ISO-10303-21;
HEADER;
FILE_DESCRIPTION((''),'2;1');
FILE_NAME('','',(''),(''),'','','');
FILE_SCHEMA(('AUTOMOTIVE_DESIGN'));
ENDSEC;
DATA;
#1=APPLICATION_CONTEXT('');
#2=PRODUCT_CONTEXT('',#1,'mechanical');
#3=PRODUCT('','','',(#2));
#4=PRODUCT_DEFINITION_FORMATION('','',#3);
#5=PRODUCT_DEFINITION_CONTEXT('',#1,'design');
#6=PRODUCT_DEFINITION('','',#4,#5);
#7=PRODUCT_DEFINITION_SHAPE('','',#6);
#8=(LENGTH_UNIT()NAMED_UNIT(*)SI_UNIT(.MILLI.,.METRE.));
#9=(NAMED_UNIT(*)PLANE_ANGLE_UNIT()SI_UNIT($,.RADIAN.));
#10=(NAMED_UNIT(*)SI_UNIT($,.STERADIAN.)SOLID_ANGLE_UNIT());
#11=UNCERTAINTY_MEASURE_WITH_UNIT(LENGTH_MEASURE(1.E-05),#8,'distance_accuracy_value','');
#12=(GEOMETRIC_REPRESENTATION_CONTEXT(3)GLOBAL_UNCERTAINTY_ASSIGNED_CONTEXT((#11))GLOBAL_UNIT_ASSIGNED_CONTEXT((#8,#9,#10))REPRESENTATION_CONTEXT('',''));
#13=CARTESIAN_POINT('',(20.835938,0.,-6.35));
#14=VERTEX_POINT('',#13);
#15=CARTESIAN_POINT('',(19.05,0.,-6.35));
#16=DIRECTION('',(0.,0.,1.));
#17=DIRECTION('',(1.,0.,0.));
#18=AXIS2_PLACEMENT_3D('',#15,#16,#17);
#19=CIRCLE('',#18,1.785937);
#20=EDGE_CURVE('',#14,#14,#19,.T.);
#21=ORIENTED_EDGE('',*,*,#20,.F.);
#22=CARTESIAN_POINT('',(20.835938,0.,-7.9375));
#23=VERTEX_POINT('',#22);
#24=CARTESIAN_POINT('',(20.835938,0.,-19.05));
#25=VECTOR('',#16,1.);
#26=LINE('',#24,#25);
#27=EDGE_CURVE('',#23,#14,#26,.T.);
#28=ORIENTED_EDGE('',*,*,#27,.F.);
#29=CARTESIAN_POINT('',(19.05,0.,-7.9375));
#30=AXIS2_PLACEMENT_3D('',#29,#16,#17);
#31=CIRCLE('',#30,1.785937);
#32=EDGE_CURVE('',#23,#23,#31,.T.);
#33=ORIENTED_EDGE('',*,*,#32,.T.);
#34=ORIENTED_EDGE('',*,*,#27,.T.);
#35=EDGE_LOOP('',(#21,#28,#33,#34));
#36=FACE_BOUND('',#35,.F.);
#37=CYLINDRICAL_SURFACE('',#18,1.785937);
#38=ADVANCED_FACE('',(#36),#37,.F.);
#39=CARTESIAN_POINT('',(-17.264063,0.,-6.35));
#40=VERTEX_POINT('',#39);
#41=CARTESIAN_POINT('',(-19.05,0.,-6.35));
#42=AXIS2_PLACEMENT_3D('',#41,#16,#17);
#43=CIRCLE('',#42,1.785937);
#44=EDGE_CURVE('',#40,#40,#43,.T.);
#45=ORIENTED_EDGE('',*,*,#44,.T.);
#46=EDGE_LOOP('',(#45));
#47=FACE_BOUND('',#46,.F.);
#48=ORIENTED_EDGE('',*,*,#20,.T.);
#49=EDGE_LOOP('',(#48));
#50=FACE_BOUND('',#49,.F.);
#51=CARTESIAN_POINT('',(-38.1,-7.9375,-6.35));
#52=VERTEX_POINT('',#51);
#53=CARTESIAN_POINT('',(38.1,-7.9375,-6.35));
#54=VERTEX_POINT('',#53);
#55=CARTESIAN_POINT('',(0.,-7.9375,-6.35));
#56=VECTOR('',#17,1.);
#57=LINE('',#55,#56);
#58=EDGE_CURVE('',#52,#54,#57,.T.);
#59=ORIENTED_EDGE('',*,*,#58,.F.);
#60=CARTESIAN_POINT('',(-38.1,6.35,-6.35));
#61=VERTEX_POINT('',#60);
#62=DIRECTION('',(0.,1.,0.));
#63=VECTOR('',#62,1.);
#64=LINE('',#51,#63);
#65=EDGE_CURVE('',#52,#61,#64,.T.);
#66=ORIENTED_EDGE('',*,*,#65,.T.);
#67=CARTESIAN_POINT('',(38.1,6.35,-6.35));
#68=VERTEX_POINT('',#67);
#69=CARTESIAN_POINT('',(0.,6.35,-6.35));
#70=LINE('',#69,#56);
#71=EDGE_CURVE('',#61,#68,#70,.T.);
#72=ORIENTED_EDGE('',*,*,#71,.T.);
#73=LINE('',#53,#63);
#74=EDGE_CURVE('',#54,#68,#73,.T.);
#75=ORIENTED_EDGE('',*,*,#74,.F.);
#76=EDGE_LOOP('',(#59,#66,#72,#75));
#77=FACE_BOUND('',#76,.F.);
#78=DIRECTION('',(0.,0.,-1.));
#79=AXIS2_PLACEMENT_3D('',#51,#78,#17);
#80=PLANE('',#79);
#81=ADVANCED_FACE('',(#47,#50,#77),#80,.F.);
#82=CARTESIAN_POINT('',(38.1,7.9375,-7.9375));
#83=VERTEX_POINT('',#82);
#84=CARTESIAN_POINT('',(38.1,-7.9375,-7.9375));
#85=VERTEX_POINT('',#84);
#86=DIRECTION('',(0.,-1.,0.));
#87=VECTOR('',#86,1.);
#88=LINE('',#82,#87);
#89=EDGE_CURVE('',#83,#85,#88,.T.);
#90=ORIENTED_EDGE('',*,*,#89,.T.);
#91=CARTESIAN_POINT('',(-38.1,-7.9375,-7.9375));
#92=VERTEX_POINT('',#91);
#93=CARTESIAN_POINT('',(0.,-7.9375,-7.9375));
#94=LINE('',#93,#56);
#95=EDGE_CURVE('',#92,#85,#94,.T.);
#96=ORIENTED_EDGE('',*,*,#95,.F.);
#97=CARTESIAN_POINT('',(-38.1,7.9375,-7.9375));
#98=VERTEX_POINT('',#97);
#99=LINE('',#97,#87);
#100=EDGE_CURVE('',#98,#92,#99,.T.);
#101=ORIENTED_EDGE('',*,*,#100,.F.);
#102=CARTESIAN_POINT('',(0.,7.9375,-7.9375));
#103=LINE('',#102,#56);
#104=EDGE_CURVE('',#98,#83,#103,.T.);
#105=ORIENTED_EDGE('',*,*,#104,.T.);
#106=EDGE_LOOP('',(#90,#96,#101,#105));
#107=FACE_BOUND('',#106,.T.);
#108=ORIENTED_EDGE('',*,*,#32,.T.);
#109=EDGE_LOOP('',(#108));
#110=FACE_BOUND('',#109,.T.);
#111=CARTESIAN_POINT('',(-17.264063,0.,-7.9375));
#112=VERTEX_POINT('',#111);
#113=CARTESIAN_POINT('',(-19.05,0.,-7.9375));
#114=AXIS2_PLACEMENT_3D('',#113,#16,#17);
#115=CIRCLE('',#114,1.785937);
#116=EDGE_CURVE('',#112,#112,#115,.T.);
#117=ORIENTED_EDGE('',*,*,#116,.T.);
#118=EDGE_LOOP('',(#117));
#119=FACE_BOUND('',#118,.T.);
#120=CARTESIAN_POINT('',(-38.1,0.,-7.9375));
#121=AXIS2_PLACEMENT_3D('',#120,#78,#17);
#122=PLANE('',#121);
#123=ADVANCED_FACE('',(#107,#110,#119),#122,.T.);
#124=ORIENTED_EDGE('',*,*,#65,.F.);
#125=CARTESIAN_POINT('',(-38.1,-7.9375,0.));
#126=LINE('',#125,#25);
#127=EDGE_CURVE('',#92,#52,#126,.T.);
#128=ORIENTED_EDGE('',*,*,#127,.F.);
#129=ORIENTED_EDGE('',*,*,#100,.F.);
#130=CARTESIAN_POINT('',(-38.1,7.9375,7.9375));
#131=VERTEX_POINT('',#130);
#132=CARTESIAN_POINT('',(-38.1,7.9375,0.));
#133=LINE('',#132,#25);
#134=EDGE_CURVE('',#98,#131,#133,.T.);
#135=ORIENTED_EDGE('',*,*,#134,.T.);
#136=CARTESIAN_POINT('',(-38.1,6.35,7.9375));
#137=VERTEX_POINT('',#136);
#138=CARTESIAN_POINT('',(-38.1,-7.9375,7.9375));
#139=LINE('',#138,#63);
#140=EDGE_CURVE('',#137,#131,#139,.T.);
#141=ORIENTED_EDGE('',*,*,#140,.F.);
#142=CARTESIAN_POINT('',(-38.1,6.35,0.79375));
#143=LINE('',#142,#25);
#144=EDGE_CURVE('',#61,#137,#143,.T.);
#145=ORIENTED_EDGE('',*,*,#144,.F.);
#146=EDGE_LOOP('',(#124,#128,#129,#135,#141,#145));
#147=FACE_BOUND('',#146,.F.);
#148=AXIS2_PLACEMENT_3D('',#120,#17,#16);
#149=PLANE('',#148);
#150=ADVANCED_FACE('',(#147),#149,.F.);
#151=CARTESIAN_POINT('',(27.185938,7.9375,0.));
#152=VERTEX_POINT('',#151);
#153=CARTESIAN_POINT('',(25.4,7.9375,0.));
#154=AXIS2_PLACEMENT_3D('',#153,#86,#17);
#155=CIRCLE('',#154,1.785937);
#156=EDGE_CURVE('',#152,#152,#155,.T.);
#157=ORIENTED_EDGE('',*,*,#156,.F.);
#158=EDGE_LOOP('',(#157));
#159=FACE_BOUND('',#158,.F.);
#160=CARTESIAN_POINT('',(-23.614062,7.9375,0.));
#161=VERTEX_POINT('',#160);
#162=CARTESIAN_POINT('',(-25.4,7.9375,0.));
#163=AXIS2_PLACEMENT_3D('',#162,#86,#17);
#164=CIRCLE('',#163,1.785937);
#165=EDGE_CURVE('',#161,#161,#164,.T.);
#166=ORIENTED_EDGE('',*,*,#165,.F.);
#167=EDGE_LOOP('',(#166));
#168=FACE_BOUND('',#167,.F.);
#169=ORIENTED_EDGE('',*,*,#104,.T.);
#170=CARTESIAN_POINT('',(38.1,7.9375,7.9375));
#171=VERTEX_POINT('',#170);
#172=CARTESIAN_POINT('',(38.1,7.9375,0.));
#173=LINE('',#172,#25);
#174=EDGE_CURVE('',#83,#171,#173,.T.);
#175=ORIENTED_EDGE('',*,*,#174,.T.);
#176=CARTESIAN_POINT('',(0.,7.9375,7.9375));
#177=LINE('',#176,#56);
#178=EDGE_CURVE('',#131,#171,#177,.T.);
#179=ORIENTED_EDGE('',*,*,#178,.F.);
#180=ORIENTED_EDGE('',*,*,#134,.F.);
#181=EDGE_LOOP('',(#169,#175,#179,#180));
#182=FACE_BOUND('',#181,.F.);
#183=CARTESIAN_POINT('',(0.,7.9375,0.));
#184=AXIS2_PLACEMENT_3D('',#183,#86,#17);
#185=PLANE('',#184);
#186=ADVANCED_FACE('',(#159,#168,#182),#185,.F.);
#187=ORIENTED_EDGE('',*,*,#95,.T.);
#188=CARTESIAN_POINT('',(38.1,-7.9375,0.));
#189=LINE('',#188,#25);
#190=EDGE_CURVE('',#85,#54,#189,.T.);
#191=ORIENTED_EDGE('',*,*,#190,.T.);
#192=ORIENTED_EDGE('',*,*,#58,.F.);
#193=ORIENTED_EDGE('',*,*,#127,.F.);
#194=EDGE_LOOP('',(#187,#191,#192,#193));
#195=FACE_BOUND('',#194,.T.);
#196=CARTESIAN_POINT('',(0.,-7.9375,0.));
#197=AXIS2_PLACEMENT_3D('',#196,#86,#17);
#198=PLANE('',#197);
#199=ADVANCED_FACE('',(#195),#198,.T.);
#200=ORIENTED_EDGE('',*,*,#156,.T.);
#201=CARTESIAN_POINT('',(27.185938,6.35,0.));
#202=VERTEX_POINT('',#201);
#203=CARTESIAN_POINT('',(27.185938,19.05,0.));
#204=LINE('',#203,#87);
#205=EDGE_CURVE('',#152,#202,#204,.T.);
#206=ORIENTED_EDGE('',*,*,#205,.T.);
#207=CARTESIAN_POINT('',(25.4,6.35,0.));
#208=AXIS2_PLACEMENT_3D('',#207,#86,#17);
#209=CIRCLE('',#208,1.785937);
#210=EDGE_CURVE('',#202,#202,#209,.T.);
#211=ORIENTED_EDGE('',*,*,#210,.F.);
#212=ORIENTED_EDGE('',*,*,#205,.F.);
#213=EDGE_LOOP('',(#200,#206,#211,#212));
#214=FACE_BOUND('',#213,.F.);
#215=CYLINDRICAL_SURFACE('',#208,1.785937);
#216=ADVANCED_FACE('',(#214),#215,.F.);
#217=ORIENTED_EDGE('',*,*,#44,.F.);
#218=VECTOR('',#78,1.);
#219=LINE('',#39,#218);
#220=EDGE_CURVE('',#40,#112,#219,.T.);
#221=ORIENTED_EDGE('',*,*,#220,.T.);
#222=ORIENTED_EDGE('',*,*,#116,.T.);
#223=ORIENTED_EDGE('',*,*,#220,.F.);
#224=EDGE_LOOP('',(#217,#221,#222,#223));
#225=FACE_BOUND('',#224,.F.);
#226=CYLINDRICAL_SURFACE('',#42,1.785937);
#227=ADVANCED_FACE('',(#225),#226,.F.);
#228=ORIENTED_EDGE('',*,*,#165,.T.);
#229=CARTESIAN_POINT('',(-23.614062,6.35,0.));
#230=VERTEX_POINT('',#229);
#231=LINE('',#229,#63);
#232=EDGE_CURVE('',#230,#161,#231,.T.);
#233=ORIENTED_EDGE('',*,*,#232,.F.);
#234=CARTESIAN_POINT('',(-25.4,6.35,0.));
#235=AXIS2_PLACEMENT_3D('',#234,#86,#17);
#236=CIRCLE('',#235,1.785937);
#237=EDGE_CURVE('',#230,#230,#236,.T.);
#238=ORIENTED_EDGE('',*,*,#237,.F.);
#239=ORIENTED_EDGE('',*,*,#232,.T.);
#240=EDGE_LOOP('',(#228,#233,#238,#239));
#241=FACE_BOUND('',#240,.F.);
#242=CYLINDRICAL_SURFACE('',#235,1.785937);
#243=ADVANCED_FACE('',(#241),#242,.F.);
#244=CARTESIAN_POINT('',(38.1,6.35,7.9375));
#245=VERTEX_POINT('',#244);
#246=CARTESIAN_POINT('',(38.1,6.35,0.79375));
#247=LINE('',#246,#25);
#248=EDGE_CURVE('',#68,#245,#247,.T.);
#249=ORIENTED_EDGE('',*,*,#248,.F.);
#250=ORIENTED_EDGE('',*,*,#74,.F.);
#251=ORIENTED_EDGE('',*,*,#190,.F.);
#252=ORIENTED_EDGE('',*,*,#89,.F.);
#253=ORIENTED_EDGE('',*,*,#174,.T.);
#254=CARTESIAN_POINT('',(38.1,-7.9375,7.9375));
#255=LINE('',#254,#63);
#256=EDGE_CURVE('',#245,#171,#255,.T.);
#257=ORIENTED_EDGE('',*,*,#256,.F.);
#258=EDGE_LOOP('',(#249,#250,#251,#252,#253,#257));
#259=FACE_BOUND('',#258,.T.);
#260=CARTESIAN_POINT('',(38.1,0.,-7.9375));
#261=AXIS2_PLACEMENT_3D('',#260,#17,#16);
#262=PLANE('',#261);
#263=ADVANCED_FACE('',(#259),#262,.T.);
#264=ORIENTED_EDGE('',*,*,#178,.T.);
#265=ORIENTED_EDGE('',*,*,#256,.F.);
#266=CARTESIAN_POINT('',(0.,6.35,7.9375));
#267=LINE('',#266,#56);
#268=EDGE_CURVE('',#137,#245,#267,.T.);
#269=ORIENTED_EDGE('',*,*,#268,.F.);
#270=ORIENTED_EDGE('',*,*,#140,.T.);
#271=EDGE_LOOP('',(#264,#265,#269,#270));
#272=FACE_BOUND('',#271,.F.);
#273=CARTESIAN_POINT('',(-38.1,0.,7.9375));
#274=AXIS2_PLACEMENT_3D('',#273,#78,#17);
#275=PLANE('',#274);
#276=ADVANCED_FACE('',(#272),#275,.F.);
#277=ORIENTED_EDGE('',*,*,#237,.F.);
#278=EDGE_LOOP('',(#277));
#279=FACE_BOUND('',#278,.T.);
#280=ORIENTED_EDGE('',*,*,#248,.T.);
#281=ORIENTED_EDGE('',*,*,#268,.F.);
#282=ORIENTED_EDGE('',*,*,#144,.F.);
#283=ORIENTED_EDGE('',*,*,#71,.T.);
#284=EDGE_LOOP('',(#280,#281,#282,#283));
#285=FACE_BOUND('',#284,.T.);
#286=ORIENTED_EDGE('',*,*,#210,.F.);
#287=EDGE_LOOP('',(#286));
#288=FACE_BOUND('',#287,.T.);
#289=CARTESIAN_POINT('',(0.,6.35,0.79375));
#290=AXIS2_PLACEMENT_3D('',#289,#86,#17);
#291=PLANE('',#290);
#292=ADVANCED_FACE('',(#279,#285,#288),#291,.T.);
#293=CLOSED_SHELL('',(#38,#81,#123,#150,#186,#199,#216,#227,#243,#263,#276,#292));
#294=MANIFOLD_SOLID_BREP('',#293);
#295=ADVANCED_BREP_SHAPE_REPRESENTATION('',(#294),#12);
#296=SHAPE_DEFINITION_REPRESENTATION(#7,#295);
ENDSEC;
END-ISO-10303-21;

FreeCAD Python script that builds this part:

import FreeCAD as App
import Part
import Sketcher
from FreeCAD import Vector
Q = App.Units.Quantity


def add_polygon(sketch, points):
    """Adds a closed chain of lines whose ends are joined by coincident constraints."""
    first, n = sketch.GeometryCount, len(points)
    for a, b in zip(points, points[1:] + points[:1]):
        sketch.addGeometry(Part.LineSegment(App.Vector(*a, 0), App.Vector(*b, 0)), False)
    for i in range(n):
        sketch.addConstraint(Sketcher.Constraint("Coincident", first + i, 2, first + (i + 1) % n, 1))

doc = App.newDocument("Part")
body = doc.addObject("PartDesign::Body", "Body")

# Sketch on XZ plane
sketch1 = body.newObject("Sketcher::SketchObject", "Sketch")
sketch1.AttachmentSupport = (doc.getObject("XZ_Plane"), [""])
sketch1.MapMode = "FlatFace"
add_polygon(sketch1, [(-38, 8), (-38, -8), (38, -8), (38, 8)])  # lines 0-3
sketch1.addConstraint([
    Sketcher.Constraint("Vertical", 0),
    Sketcher.Constraint("Horizontal", 1),
    Sketcher.Constraint("Vertical", 2),
    Sketcher.Constraint("Horizontal", 3),
    Sketcher.Constraint("Symmetric", 0, 2, 2, 2, -1, 1),
    Sketcher.Constraint("DistanceX", 1, 1, 1, 2, Q("3 in")),
    Sketcher.Constraint("DistanceY", 0, 2, 0, 1, Q("0.625 in")),
])
pad1 = body.newObject("PartDesign::Pad", "Pad")
pad1.Profile = sketch1
pad1.Length = Q("0.625 in")
pad1.Midplane = True

# Sketch on XZ plane
sketch2 = body.newObject("Sketcher::SketchObject", "Sketch001")
sketch2.AttachmentSupport = (doc.getObject("XZ_Plane"), [""])
sketch2.MapMode = "FlatFace"
sketch2.AttachmentOffset = App.Placement(Vector(0, 0, 0.3125 * 25.4), App.Rotation())
add_polygon(sketch2, [(-38, 8), (-38, -6), (38, -6), (38, 8)])  # lines 0-3
sketch2.addConstraint([
    Sketcher.Constraint("Vertical", 0),
    Sketcher.Constraint("Horizontal", 1),
    Sketcher.Constraint("Vertical", 2),
    Sketcher.Constraint("Horizontal", 3),
    Sketcher.Constraint("DistanceX", 1, 1, 1, 2, Q("3 in")),
    Sketcher.Constraint("DistanceX", 0, 2, -1, 1, Q("1.5 in")),
    Sketcher.Constraint("DistanceY", 0, 2, 0, 1, Q("0.5625 in")),
    Sketcher.Constraint("DistanceY", 0, 2, -1, 1, Q("0.25 in")),
])
pocket1 = body.newObject("PartDesign::Pocket", "Pocket")
pocket1.Profile = sketch2
pocket1.Length = Q("0.5625 in")

# Sketch on XY plane
sketch3 = body.newObject("Sketcher::SketchObject", "Sketch002")
sketch3.AttachmentSupport = (doc.getObject("XY_Plane"), [""])
sketch3.MapMode = "FlatFace"
sketch3.AttachmentOffset = App.Placement(Vector(0, 0, -0.25 * 25.4), App.Rotation())
sketch3.addGeometry([
    Part.Circle(Vector(-19.1, 0, 0), Vector(0, 0, 1), 1.8),
    Part.Circle(Vector(19.1, 0, 0), Vector(0, 0, 1), 1.8),
], False)
sketch3.addConstraint([
    Sketcher.Constraint("Equal", 0, 1),
    Sketcher.Constraint("Symmetric", 0, 3, 1, 3, -1, 1),
    Sketcher.Constraint("PointOnObject", 0, 3, -1),
    Sketcher.Constraint("Diameter", 0, Q("0.140625 in")),
    Sketcher.Constraint("DistanceX", 0, 3, 1, 3, Q("1.5 in")),
])
pocket2 = body.newObject("PartDesign::Pocket", "Pocket001")
pocket2.Profile = sketch3
pocket2.Length = Q("1 in")
pocket2.Midplane = True

# Sketch on XZ plane
sketch4 = body.newObject("Sketcher::SketchObject", "Sketch003")
sketch4.AttachmentSupport = (doc.getObject("XZ_Plane"), [""])
sketch4.MapMode = "FlatFace"
sketch4.AttachmentOffset = App.Placement(Vector(0, 0, -0.25 * 25.4), App.Rotation())
sketch4.addGeometry([
    Part.Circle(Vector(-25.4, 0, 0), Vector(0, 0, 1), 1.8),
    Part.Circle(Vector(25.4, 0, 0), Vector(0, 0, 1), 1.8),
], False)
sketch4.addConstraint([
    Sketcher.Constraint("Equal", 0, 1),
    Sketcher.Constraint("Symmetric", 0, 3, 1, 3, -1, 1),
    Sketcher.Constraint("PointOnObject", 0, 3, -1),
    Sketcher.Constraint("Diameter", 0, Q("0.140625 in")),
    Sketcher.Constraint("DistanceX", 0, 3, -1, 1, Q("1 in")),
])
pocket3 = body.newObject("PartDesign::Pocket", "Pocket002")
pocket3.Profile = sketch4
pocket3.Length = Q("1 in")
pocket3.Midplane = True

doc.recompute()
